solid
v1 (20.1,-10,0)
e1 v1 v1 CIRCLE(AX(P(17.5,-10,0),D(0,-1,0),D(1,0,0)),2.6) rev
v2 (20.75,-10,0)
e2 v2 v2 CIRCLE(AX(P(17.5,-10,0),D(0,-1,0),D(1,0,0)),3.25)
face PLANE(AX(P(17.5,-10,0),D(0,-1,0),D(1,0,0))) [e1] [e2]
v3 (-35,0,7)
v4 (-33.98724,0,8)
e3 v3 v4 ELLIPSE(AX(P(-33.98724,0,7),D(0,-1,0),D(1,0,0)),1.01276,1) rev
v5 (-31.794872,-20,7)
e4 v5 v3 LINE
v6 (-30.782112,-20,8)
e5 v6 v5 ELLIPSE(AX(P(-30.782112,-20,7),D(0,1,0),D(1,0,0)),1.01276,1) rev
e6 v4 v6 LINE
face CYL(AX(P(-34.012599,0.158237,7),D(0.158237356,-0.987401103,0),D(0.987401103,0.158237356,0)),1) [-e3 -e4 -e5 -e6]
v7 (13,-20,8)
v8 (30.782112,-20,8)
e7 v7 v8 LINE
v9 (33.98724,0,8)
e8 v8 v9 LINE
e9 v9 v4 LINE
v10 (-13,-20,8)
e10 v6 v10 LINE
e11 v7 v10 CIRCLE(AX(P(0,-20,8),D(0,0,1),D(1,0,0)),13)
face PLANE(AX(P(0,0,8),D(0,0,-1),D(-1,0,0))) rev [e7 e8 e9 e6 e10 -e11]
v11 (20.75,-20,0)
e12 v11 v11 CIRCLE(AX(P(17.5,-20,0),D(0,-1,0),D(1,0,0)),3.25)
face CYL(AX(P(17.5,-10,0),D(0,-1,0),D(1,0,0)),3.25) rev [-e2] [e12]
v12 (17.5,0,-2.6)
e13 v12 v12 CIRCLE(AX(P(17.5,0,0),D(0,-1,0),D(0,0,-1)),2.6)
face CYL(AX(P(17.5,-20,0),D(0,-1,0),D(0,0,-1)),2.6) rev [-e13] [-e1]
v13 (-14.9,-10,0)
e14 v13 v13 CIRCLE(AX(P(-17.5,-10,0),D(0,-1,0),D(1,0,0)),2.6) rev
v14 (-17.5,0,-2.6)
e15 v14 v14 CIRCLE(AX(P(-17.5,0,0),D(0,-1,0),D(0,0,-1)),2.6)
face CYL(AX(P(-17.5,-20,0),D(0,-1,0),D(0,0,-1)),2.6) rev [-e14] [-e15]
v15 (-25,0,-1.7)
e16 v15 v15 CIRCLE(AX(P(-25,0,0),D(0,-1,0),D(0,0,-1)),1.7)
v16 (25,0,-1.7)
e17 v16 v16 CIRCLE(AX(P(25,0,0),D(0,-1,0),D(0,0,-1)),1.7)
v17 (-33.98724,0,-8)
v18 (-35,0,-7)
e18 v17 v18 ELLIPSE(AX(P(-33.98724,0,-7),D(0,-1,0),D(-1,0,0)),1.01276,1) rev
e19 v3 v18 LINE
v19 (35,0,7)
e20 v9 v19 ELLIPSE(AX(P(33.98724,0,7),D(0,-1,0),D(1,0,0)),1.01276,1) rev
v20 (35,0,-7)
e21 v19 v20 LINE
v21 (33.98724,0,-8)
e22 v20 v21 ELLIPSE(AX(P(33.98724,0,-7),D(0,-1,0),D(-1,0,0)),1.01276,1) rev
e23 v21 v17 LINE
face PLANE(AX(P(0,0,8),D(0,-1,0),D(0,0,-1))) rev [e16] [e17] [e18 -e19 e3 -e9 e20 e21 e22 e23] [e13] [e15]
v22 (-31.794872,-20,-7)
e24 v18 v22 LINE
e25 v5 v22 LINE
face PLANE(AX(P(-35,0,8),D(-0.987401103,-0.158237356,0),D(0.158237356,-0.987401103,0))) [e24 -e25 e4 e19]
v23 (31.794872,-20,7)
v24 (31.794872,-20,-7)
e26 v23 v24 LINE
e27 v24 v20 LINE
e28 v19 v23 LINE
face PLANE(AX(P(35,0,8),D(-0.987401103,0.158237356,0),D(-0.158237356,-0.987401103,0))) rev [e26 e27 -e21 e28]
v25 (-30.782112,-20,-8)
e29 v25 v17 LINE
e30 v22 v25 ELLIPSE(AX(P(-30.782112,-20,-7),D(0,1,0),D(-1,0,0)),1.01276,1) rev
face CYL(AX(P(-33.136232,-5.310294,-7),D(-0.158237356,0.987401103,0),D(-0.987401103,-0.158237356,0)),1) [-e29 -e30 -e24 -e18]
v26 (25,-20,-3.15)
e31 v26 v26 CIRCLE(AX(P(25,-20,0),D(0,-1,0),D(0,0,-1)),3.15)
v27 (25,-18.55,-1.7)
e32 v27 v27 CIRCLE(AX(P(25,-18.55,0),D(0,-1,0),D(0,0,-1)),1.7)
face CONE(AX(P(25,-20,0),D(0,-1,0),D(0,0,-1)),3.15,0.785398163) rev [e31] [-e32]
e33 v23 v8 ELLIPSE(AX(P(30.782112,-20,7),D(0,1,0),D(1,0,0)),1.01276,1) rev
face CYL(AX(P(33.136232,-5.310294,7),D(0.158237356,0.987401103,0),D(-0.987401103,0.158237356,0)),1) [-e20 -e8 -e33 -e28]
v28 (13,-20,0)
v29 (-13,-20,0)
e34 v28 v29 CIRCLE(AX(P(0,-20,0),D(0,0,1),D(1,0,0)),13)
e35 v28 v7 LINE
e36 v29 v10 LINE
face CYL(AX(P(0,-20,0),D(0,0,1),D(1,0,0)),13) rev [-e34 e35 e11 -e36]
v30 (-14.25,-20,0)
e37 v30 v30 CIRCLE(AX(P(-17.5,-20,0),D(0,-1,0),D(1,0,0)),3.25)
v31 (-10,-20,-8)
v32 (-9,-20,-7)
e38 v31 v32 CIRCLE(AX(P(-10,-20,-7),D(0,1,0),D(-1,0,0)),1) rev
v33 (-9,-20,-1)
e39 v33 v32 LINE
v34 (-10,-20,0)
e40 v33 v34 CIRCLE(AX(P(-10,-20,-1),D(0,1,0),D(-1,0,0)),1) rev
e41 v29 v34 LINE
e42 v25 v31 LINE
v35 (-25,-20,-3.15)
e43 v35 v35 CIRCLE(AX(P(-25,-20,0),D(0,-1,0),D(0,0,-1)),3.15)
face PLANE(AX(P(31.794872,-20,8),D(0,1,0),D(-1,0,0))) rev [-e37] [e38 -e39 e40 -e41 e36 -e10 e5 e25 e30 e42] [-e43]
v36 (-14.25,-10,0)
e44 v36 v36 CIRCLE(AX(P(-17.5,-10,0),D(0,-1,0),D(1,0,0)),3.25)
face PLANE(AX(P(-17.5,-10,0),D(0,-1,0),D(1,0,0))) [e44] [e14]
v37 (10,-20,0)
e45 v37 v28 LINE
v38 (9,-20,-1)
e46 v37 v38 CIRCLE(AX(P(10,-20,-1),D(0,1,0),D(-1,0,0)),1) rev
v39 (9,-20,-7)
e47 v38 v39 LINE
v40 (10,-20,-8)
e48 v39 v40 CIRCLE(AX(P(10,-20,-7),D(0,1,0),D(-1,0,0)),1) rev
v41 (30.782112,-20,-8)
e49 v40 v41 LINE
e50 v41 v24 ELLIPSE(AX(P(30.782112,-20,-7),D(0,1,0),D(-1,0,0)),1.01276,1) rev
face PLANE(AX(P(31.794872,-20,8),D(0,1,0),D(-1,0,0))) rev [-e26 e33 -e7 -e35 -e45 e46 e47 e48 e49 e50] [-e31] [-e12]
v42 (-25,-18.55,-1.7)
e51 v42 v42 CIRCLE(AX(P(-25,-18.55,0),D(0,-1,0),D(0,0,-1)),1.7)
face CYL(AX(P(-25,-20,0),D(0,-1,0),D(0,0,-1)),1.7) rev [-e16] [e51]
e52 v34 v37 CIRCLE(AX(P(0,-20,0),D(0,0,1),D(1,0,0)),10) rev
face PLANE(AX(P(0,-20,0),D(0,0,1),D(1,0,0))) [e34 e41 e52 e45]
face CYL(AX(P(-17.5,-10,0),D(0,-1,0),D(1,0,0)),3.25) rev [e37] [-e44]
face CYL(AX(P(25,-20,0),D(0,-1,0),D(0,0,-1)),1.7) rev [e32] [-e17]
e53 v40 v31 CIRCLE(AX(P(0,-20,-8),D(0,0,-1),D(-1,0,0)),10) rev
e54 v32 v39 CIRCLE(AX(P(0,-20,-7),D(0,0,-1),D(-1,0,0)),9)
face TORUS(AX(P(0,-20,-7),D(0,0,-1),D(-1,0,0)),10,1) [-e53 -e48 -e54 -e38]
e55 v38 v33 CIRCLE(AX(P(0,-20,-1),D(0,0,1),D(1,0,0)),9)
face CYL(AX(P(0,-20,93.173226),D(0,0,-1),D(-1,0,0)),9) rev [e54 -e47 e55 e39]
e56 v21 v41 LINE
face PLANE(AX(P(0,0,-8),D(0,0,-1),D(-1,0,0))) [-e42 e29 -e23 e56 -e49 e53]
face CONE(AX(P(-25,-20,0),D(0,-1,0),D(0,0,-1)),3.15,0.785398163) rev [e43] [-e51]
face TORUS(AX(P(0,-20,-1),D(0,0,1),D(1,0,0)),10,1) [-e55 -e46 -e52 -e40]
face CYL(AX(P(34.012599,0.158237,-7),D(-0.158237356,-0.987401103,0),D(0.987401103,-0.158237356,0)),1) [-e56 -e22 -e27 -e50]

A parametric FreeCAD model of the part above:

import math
import FreeCAD as App
import Part
import Sketcher

V = App.Vector


def edges_at(feature, points):
    """Names of the edges that pass closest to the given points."""
    edges = feature.Shape.Edges
    near = lambda p: min(range(len(edges)), key=lambda i: edges[i].distToShape(Part.Vertex(*p))[0])
    return sorted({f"Edge{near(p) + 1}" for p in points})


def add_polygon(sketch, points):
    """Adds a closed chain of lines whose ends are joined by coincident constraints."""
    first, n = sketch.GeometryCount, len(points)
    for a, b in zip(points, points[1:] + points[:1]):
        sketch.addGeometry(Part.LineSegment(App.Vector(*a, 0), App.Vector(*b, 0)), False)
    for i in range(n):
        sketch.addConstraint(Sketcher.Constraint("Coincident", first + i, 2, first + (i + 1) % n, 1))

doc = App.newDocument("Part")
body = doc.addObject("PartDesign::Body", "Body")

sketch1 = doc.addObject("Sketcher::SketchObject", "Sketch")
body.addObject(sketch1)
sketch1.AttachmentSupport = (doc.XY_Plane, [""])
sketch1.MapMode = "FlatFace"
add_polygon(sketch1, [(35, 0), (0, 0), (0, -20), (32, -20)])
sketch1.addConstraint(Sketcher.Constraint("Horizontal", 0))
sketch1.addConstraint(Sketcher.Constraint("Vertical", 1))
sketch1.addConstraint(Sketcher.Constraint("Horizontal", 2))
sketch1.addConstraint(Sketcher.Constraint("Coincident", 0, 2, -1, 1))
sketch1.addConstraint(Sketcher.Constraint("DistanceX", 0, 2, 0, 1, 35.0))
sketch1.addConstraint(Sketcher.Constraint("DistanceY", 1, 2, 1, 1, 20.0))
sketch1.addConstraint(Sketcher.Constraint("DistanceX", 2, 1, 2, 2, 31.794872))
pad1 = doc.addObject("PartDesign::Pad", "Pad")
body.addObject(pad1)
pad1.Profile = sketch1
pad1.Length = 16
pad1.Midplane = True
doc.recompute()

mirrored = doc.addObject("PartDesign::Mirrored", "Mirrored")
body.addObject(mirrored)
mirrored.Originals = [pad1]
mirrored.MirrorPlane = (doc.YZ_Plane, [""])
body.Tip = mirrored

sketch2 = doc.addObject("Sketcher::SketchObject", "Sketch001")
body.addObject(sketch2)
sketch2.AttachmentSupport = (doc.XY_Plane, [""])
sketch2.MapMode = "FlatFace"
sketch2.AttachmentOffset = App.Placement(V(0, 0, 8), App.Rotation())
sketch2.addGeometry(Part.LineSegment(V(-13, -20, 0), V(13, -20, 0)), False)
sketch2.addGeometry(Part.ArcOfCircle(Part.Circle(V(0, -20, 0), V(0, 0, 1), 13), math.radians(0), math.radians(180)), False)
sketch2.addConstraint(Sketcher.Constraint("Coincident", 0, 1, 1, 2))
sketch2.addConstraint(Sketcher.Constraint("Coincident", 1, 1, 0, 2))
sketch2.addConstraint(Sketcher.Constraint("Horizontal", 0))
sketch2.addConstraint(Sketcher.Constraint("PointOnObject", 1, 3, -2))
sketch2.addConstraint(Sketcher.Constraint("Horizontal", 1, 3, 0, 1))
sketch2.addConstraint(Sketcher.Constraint("Radius", 1, 13.0))
sketch2.addConstraint(Sketcher.Constraint("DistanceY", 1, 3, -1, 1, 20.0))
pocket1 = doc.addObject("PartDesign::Pocket", "Pocket")
body.addObject(pocket1)
pocket1.Profile = sketch2
pocket1.Length = 8

sketch3 = doc.addObject("Sketcher::SketchObject", "Sketch002")
body.addObject(sketch3)
sketch3.AttachmentSupport = (doc.XY_Plane, [""])
sketch3.MapMode = "FlatFace"
sketch3.addGeometry(Part.ArcOfCircle(Part.Circle(V(0, -20, 0), V(0, 0, 1), 9), math.radians(0), math.radians(180)), False)
sketch3.addGeometry(Part.LineSegment(V(-9, -20, 0), V(9, -20, 0)), False)
sketch3.addConstraint(Sketcher.Constraint("Coincident", 0, 1, 1, 2))
sketch3.addConstraint(Sketcher.Constraint("Coincident", 1, 1, 0, 2))
sketch3.addConstraint(Sketcher.Constraint("Horizontal", 1))
sketch3.addConstraint(Sketcher.Constraint("PointOnObject", 0, 3, -2))
sketch3.addConstraint(Sketcher.Constraint("Radius", 0, 9.0))
sketch3.addConstraint(Sketcher.Constraint("DistanceY", 0, 3, -1, 1, 20.0))
sketch3.addConstraint(Sketcher.Constraint("DistanceY", 0, 1, -1, 1, 20.0))
pocket2 = doc.addObject("PartDesign::Pocket", "Pocket001")
body.addObject(pocket2)
pocket2.Profile = sketch3
pocket2.Type = "ThroughAll"
pocket2.Midplane = True

sketch4 = doc.addObject("Sketcher::SketchObject", "Sketch003")
body.addObject(sketch4)
sketch4.AttachmentSupport = (doc.XZ_Plane, [""])
sketch4.MapMode = "FlatFace"
sketch4.AttachmentOffset = App.Placement(V(0, 0, 20), App.Rotation())
sketch4.addGeometry(Part.Circle(V(25, 0, 0), V(0, 0, 1), 1.7), False)
sketch4.addGeometry(Part.Circle(V(-25, 0, 0), V(0, 0, 1), 1.7), False)
sketch4.addConstraint(Sketcher.Constraint("Equal", 0, 1))
sketch4.addConstraint(Sketcher.Constraint("Symmetric", 0, 3, 1, 3, -1, 1))
sketch4.addConstraint(Sketcher.Constraint("PointOnObject", 0, 3, -1))
sketch4.addConstraint(Sketcher.Constraint("Diameter", 0, 3.4))
sketch4.addConstraint(Sketcher.Constraint("DistanceX", -1, 1, 0, 3, 25.0))
doc.recompute()
hole = doc.addObject("PartDesign::Hole", "Hole")
body.addObject(hole)
hole.Profile = sketch4
hole.ThreadType = "None"
hole.Diameter = 3.4
hole.DepthType = "ThroughAll"
hole.HoleCutType = "Countersink"
hole.HoleCutDiameter = 6.3
hole.HoleCutCountersinkAngle = 90

sketch5 = doc.addObject("Sketcher::SketchObject", "Sketch004")
body.addObject(sketch5)
sketch5.AttachmentSupport = (doc.XZ_Plane, [""])
sketch5.MapMode = "FlatFace"
sketch5.AttachmentOffset = App.Placement(V(0, 0, 20), App.Rotation())
sketch5.addGeometry(Part.Circle(V(17.5, 0, 0), V(0, 0, 1), 2.6), False)
sketch5.addGeometry(Part.Circle(V(-17.5, 0, 0), V(0, 0, 1), 2.6), False)
sketch5.addConstraint(Sketcher.Constraint("Equal", 0, 1))
sketch5.addConstraint(Sketcher.Constraint("Symmetric", 0, 3, 1, 3, -1, 1))
sketch5.addConstraint(Sketcher.Constraint("PointOnObject", 0, 3, -1))
sketch5.addConstraint(Sketcher.Constraint("Diameter", 0, 5.2))
sketch5.addConstraint(Sketcher.Constraint("DistanceX", 1, 3, 0, 3, 35.0))
doc.recompute()
hole2 = doc.addObject("PartDesign::Hole", "Hole001")
body.addObject(hole2)
hole2.Profile = sketch5
hole2.ThreadType = "None"
hole2.Diameter = 5.2
hole2.DepthType = "ThroughAll"

sketch6 = doc.addObject("Sketcher::SketchObject", "Sketch005")
body.addObject(sketch6)
sketch6.AttachmentSupport = (doc.XZ_Plane, [""])
sketch6.MapMode = "FlatFace"
sketch6.AttachmentOffset = App.Placement(V(0, 0, 20), App.Rotation())
sketch6.addGeometry(Part.Circle(V(-17.5, 0, 0), V(0, 0, 1), 3.2), False)
sketch6.addGeometry(Part.Circle(V(17.5, 0, 0), V(0, 0, 1), 3.2), False)
sketch6.addConstraint(Sketcher.Constraint("Equal", 0, 1))
sketch6.addConstraint(Sketcher.Constraint("Symmetric", 0, 3, 1, 3, -1, 1))
sketch6.addConstraint(Sketcher.Constraint("PointOnObject", 0, 3, -1))
sketch6.addConstraint(Sketcher.Constraint("Diameter", 0, 6.5))
sketch6.addConstraint(Sketcher.Constraint("DistanceX", 0, 3, 1, 3, 35.0))
pocket3 = doc.addObject("PartDesign::Pocket", "Pocket002")
body.addObject(pocket3)
pocket3.Profile = sketch6
pocket3.Length = 10
doc.recompute()

fillet = doc.addObject("PartDesign::Fillet", "Fillet")
body.addObject(fillet)
fillet.Base = (pocket3, edges_at(pocket3, [
    (33.397, -10, 8),
    (-33.397, -10, 8),
    (-33.397, -10, -8),
    (0, -11, 0),
    (0, -11, -8),
    (33.397, -10, -8),
]))
fillet.Radius = 1

doc.recompute()
